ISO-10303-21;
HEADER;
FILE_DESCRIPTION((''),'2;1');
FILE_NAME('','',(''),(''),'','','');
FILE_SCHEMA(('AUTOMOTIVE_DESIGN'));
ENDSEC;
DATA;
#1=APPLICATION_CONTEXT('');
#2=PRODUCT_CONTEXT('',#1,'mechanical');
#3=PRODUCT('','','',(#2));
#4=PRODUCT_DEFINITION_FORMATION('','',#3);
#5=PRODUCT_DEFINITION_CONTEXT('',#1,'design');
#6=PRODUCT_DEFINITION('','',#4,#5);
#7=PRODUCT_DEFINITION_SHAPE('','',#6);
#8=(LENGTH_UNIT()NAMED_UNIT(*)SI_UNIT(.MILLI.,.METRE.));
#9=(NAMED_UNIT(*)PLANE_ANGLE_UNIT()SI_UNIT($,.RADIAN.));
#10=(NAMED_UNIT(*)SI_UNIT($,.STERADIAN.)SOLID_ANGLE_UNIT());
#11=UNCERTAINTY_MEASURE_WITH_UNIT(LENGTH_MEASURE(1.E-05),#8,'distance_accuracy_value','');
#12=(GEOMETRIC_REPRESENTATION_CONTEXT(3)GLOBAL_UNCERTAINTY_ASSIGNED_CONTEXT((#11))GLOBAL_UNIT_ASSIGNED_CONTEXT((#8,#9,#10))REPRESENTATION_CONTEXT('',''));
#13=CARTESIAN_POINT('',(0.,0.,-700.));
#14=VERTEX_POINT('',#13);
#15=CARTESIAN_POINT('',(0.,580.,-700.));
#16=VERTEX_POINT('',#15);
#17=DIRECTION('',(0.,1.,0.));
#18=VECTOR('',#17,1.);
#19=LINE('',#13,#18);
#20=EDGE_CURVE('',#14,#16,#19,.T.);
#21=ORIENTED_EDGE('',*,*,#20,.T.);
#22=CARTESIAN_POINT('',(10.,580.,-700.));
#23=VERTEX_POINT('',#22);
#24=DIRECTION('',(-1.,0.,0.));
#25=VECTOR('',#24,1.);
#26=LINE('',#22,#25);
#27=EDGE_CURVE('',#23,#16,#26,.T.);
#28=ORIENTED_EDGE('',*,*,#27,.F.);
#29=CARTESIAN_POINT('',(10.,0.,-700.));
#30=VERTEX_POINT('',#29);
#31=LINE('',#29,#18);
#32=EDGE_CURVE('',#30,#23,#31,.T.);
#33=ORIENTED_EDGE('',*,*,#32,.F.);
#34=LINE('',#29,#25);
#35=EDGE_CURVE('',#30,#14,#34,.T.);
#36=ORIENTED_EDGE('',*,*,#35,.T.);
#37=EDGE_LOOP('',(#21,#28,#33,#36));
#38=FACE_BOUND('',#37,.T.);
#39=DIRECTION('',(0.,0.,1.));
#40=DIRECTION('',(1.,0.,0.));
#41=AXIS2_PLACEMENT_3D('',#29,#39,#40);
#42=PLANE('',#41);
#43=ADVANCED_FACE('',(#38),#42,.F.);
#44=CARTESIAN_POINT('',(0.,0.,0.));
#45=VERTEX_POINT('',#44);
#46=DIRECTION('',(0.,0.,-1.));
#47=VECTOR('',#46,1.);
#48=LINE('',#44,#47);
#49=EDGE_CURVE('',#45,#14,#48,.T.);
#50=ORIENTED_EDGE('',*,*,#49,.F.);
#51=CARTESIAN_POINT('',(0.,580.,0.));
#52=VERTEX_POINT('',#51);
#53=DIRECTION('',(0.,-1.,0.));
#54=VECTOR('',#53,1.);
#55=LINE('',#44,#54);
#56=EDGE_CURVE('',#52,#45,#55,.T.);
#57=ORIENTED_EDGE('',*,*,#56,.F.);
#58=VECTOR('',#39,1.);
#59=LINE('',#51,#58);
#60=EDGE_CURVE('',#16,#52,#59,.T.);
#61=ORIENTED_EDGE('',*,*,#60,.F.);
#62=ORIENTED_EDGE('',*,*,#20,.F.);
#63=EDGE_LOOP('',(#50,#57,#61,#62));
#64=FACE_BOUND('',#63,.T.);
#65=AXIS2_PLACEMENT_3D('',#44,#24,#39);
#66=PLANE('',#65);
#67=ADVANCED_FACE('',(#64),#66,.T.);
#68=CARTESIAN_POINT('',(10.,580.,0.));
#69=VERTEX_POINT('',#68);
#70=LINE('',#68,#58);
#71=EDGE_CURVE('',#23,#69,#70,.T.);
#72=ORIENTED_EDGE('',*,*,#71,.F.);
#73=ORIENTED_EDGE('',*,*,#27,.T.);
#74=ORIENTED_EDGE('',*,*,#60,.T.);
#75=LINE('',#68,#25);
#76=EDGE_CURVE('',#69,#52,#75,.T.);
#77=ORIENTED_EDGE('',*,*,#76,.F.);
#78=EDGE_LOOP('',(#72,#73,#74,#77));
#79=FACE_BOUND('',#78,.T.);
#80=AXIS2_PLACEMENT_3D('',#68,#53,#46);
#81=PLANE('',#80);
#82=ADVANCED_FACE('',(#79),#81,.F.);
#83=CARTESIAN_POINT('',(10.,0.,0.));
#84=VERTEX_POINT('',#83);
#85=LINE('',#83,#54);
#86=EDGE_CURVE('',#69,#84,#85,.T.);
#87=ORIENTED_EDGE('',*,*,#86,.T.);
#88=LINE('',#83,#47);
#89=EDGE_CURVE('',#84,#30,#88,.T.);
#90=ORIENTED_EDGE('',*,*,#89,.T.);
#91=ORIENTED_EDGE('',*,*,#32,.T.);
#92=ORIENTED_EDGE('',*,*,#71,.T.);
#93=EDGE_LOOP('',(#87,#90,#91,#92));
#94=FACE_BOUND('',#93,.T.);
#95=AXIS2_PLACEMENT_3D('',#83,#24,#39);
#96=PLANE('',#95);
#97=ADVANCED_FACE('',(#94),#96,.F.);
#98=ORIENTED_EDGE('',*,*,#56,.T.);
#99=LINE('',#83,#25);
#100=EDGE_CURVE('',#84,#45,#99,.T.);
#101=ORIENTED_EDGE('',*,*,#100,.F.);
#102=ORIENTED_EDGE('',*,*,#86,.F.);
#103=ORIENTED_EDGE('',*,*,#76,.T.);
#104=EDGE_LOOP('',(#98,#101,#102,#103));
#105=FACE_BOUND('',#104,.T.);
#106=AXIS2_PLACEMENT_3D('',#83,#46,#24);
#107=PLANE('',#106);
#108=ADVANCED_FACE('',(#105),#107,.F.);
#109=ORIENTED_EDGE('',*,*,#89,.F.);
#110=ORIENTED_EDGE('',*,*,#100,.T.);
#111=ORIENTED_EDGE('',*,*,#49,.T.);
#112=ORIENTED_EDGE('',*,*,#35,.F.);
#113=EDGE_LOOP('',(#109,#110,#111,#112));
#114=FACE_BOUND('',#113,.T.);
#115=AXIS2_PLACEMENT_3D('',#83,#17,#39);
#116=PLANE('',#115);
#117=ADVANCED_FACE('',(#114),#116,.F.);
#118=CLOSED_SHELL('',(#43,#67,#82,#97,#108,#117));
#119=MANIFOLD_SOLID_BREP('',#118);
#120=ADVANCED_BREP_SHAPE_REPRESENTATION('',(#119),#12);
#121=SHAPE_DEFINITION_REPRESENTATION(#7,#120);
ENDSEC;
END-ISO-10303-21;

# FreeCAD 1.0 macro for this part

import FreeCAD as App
import Part
import Sketcher

V = App.Vector
Q = App.Units.Quantity

doc = App.newDocument("Part")
params = doc.addObject("Spreadsheet::Sheet", "Params")
for row, (alias, value) in enumerate([
    ("sketch1_width", "580 mm"),
    ("sketch1_height", "700 mm"),
    ("pad1_length", "10 mm"),
], start=1):
    params.set(f"A{row}", alias)
    params.set(f"B{row}", "=" + value)
    params.setAlias(f"B{row}", alias)

body = doc.addObject("PartDesign::Body", "Body")

# Sketch on YZ plane
sketch1 = body.newObject("Sketcher::SketchObject", "Sketch")
sketch1.AttachmentSupport = (doc.getObject("YZ_Plane"), [""])
sketch1.MapMode = "FlatFace"
sketch1.addGeometry([
    Part.LineSegment(V(580, 0, 0), V(0, 0, 0)),
    Part.LineSegment(V(0, 0, 0), V(0, -700, 0)),
    Part.LineSegment(V(0, -700, 0), V(580, -700, 0)),
    Part.LineSegment(V(580, -700, 0), V(580, 0, 0)),
], False)
sketch1.addConstraint([
    Sketcher.Constraint("Coincident", 0, 2, 1, 1),
    Sketcher.Constraint("Coincident", 1, 2, 2, 1),
    Sketcher.Constraint("Coincident", 2, 2, 3, 1),
    Sketcher.Constraint("Coincident", 3, 2, 0, 1),
    Sketcher.Constraint("Horizontal", 0),
    Sketcher.Constraint("Vertical", 1),
    Sketcher.Constraint("Horizontal", 2),
    Sketcher.Constraint("Vertical", 3),
    Sketcher.Constraint("Coincident", 0, 2, -1, 1),
    Sketcher.Constraint("DistanceX", 0, 2, 0, 1, Q("580 mm")),
    Sketcher.Constraint("DistanceY", 1, 2, 1, 1, Q("700 mm")),
])
sketch1.setExpression("Constraints[9]", "Params.sketch1_width")
sketch1.setExpression("Constraints[10]", "Params.sketch1_height")
pad1 = body.newObject("PartDesign::Pad", "Pad")
pad1.Profile = sketch1
pad1.setExpression("Length", "Params.pad1_length")

doc.recompute()
